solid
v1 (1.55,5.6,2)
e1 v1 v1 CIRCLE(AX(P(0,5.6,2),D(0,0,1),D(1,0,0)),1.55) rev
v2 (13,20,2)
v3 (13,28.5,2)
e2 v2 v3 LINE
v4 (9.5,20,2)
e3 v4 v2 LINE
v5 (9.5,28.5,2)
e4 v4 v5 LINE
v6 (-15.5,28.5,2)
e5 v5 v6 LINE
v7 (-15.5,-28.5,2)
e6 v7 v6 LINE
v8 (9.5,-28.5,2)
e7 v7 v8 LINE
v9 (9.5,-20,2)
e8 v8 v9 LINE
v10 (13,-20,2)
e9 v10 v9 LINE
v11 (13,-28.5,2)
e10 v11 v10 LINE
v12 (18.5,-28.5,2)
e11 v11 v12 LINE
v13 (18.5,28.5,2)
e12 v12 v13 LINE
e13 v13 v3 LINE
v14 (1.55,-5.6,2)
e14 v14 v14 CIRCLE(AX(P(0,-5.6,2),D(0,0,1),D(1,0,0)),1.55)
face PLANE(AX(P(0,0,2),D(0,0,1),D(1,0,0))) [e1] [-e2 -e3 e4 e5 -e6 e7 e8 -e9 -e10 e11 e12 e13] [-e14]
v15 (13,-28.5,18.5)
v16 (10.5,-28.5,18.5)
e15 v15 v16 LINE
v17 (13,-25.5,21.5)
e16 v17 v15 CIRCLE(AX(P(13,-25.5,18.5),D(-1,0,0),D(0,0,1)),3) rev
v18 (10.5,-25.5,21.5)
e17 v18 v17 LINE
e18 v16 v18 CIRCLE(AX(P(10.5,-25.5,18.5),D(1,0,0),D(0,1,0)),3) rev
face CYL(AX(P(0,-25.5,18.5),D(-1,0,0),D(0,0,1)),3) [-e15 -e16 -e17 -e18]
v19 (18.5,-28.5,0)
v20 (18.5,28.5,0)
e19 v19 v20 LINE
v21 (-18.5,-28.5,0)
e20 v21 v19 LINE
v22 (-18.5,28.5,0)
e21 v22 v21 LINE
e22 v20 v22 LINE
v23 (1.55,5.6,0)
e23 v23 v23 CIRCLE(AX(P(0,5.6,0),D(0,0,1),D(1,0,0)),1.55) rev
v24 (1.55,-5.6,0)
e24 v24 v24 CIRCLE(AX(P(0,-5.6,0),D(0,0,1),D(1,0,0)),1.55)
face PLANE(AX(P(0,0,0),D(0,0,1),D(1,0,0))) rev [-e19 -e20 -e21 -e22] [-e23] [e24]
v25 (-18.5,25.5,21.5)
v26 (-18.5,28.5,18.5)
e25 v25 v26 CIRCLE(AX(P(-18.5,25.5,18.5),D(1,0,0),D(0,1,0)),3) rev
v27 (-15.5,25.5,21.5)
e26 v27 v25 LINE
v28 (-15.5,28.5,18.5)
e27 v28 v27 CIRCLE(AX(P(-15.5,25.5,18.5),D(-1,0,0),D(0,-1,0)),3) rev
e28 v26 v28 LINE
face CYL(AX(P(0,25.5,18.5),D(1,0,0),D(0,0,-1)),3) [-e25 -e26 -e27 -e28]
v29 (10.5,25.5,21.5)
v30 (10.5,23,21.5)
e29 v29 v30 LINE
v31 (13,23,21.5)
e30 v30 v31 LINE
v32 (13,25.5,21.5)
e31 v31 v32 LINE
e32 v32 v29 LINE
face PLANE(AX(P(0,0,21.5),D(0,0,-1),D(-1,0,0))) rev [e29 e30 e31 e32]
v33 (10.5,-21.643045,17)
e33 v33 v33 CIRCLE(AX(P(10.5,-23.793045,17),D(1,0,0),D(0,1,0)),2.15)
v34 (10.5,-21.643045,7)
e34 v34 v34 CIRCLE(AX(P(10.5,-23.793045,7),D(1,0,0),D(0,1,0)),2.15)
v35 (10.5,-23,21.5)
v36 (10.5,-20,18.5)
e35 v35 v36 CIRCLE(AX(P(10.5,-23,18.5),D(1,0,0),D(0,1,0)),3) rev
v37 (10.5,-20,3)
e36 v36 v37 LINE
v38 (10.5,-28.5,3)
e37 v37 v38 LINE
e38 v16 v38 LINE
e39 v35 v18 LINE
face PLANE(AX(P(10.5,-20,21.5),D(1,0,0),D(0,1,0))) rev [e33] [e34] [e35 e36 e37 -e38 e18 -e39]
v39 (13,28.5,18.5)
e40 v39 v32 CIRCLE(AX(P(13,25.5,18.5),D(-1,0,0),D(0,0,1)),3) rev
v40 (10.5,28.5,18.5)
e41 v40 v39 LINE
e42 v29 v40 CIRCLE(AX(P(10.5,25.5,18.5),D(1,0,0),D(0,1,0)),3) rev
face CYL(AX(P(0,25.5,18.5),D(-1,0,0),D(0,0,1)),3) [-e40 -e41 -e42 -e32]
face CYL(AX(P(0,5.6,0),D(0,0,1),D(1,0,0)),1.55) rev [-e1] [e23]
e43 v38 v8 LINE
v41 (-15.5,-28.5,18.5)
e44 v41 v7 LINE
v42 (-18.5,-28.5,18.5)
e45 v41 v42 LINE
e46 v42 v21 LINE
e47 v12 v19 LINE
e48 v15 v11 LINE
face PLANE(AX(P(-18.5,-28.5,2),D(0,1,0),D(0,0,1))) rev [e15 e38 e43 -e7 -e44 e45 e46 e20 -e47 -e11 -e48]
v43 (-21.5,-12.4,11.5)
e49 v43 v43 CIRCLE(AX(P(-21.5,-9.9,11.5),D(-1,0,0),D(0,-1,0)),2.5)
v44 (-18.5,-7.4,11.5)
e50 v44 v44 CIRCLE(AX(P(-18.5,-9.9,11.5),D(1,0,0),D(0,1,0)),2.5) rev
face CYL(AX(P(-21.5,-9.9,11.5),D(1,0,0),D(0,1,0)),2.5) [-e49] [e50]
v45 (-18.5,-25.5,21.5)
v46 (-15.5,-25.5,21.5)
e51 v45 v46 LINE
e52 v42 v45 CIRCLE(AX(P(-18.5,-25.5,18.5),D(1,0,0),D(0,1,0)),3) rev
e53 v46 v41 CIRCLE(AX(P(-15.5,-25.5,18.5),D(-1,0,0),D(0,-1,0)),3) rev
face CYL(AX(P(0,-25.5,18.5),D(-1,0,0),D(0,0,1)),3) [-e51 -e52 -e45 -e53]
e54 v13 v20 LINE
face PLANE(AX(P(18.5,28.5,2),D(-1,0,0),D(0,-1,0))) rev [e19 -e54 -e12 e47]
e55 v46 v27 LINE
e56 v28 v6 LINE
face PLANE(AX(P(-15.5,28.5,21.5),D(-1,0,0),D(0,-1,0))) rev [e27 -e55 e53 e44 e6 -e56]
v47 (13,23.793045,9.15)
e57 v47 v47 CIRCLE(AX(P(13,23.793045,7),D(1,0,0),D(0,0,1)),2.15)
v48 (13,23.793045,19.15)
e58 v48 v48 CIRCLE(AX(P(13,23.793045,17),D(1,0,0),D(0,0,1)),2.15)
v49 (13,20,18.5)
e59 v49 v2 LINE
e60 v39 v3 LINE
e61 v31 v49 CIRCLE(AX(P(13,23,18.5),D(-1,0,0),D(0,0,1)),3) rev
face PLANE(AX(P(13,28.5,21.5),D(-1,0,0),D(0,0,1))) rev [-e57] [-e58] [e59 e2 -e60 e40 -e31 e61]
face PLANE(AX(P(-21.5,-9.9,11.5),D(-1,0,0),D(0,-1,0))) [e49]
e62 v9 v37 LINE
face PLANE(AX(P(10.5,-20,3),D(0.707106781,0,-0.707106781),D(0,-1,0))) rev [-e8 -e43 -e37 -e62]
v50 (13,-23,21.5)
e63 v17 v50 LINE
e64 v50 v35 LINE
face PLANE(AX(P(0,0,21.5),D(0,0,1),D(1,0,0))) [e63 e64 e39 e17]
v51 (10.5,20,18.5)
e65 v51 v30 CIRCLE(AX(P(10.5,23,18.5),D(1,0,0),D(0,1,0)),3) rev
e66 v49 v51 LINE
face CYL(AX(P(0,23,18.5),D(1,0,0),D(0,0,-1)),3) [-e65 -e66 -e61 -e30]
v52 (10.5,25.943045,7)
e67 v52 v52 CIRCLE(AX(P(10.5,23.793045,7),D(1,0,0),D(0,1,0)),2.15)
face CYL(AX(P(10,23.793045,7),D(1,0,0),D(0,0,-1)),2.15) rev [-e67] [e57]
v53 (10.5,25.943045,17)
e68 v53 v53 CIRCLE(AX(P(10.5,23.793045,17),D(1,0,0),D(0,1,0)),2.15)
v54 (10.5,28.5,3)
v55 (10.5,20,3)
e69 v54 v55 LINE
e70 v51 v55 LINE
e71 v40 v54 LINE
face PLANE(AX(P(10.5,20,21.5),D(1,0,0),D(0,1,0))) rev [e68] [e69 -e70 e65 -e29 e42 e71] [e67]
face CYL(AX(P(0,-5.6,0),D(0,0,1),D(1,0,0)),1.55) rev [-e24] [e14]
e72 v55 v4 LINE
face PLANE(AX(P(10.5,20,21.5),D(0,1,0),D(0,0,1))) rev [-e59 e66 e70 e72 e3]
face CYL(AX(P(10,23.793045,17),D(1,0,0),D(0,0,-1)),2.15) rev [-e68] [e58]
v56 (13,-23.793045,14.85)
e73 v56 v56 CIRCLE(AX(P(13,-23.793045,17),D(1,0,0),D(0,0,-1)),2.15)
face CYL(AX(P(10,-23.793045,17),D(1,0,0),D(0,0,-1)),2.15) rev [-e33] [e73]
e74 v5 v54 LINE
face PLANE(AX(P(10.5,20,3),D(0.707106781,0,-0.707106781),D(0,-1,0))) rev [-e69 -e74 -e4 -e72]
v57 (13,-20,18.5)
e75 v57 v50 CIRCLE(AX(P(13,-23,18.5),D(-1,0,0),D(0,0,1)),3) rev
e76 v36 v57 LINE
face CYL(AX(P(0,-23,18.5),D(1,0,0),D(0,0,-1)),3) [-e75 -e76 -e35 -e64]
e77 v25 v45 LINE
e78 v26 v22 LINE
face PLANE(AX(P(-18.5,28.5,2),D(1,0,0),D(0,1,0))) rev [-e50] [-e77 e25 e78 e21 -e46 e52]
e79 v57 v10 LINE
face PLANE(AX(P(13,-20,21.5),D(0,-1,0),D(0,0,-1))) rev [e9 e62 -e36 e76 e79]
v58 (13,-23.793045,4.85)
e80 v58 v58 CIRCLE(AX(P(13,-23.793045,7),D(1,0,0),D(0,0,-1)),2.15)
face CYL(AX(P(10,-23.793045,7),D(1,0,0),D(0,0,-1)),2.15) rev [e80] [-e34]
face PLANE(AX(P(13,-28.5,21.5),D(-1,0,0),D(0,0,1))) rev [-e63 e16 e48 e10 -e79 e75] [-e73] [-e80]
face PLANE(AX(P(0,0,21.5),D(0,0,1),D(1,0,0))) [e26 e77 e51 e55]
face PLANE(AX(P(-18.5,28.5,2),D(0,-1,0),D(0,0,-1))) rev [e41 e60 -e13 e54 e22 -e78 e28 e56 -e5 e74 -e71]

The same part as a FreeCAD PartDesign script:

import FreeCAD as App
import Part
import Sketcher

V = App.Vector
Q = App.Units.Quantity


def edges_at(feature, points):
    """Names of the edges that pass closest to the given points."""
    edges = feature.Shape.Edges
    near = lambda p: min(range(len(edges)), key=lambda i: edges[i].distToShape(Part.Vertex(*p))[0])
    return sorted({f"Edge{near(p) + 1}" for p in points})

doc = App.newDocument("Part")
body = doc.addObject("PartDesign::Body", "Body")

# Sketch on XY plane
sketch1 = body.newObject("Sketcher::SketchObject", "Sketch")
sketch1.AttachmentSupport = (doc.getObject("XY_Plane"), [""])
sketch1.MapMode = "FlatFace"
sketch1.addGeometry(Part.LineSegment(V(-18.5, 28.5, 0), V(-18.5, -28.5, 0)), False)
sketch1.addGeometry(Part.LineSegment(V(-18.5, -28.5, 0), V(18.5, -28.5, 0)), False)
sketch1.addGeometry(Part.LineSegment(V(18.5, -28.5, 0), V(18.5, 28.5, 0)), False)
sketch1.addGeometry(Part.LineSegment(V(18.5, 28.5, 0), V(-18.5, 28.5, 0)), False)
sketch1.addConstraint(Sketcher.Constraint("Coincident", 0, 2, 1, 1))
sketch1.addConstraint(Sketcher.Constraint("Coincident", 1, 2, 2, 1))
sketch1.addConstraint(Sketcher.Constraint("Coincident", 2, 2, 3, 1))
sketch1.addConstraint(Sketcher.Constraint("Coincident", 3, 2, 0, 1))
sketch1.addConstraint(Sketcher.Constraint("Vertical", 0))
sketch1.addConstraint(Sketcher.Constraint("Horizontal", 1))
sketch1.addConstraint(Sketcher.Constraint("Vertical", 2))
sketch1.addConstraint(Sketcher.Constraint("Horizontal", 3))
sketch1.addConstraint(Sketcher.Constraint("Symmetric", 0, 2, 2, 2, -1, 1))
sketch1.addConstraint(Sketcher.Constraint("DistanceX", 1, 1, 1, 2, Q("37 mm")))
sketch1.addConstraint(Sketcher.Constraint("DistanceY", 0, 2, 0, 1, Q("57 mm")))
pad1 = body.newObject("PartDesign::Pad", "Pad")
pad1.Profile = sketch1
pad1.Length = 2

# Sketch on XY plane
sketch2 = body.newObject("Sketcher::SketchObject", "Sketch001")
sketch2.AttachmentSupport = (doc.getObject("XY_Plane"), [""])
sketch2.MapMode = "FlatFace"
sketch2.AttachmentOffset = App.Placement(V(0, 0, 2), App.Rotation())
sketch2.addGeometry(Part.LineSegment(V(-18.5, 28.5, 0), V(-18.5, -28.5, 0)), False)
sketch2.addGeometry(Part.LineSegment(V(-18.5, -28.5, 0), V(-15.5, -28.5, 0)), False)
sketch2.addGeometry(Part.LineSegment(V(-15.5, -28.5, 0), V(-15.5, 28.5, 0)), False)
sketch2.addGeometry(Part.LineSegment(V(-15.5, 28.5, 0), V(-18.5, 28.5, 0)), False)
sketch2.addConstraint(Sketcher.Constraint("Coincident", 0, 2, 1, 1))
sketch2.addConstraint(Sketcher.Constraint("Coincident", 1, 2, 2, 1))
sketch2.addConstraint(Sketcher.Constraint("Coincident", 2, 2, 3, 1))
sketch2.addConstraint(Sketcher.Constraint("Coincident", 3, 2, 0, 1))
sketch2.addConstraint(Sketcher.Constraint("Vertical", 0))
sketch2.addConstraint(Sketcher.Constraint("Horizontal", 1))
sketch2.addConstraint(Sketcher.Constraint("Vertical", 2))
sketch2.addConstraint(Sketcher.Constraint("Horizontal", 3))
sketch2.addConstraint(Sketcher.Constraint("DistanceX", 1, 1, 1, 2, Q("3 mm")))
sketch2.addConstraint(Sketcher.Constraint("DistanceY", 0, 2, 0, 1, Q("57 mm")))
sketch2.addConstraint(Sketcher.Constraint("DistanceX", 0, 2, -1, 1, Q("18.5 mm")))
sketch2.addConstraint(Sketcher.Constraint("DistanceY", 0, 2, -1, 1, Q("28.5 mm")))
pad2 = body.newObject("PartDesign::Pad", "Pad001")
pad2.Profile = sketch2
pad2.Length = 19.5

# Sketch on XY plane
sketch3 = body.newObject("Sketcher::SketchObject", "Sketch002")
sketch3.AttachmentSupport = (doc.getObject("XY_Plane"), [""])
sketch3.MapMode = "FlatFace"
sketch3.AttachmentOffset = App.Placement(V(0, 0, 2), App.Rotation())
sketch3.addGeometry(Part.LineSegment(V(10.5, -20, 0), V(10.5, -28.5, 0)), False)
sketch3.addGeometry(Part.LineSegment(V(10.5, -28.5, 0), V(13, -28.5, 0)), False)
sketch3.addGeometry(Part.LineSegment(V(13, -28.5, 0), V(13, -20, 0)), False)
sketch3.addGeometry(Part.LineSegment(V(13, -20, 0), V(10.5, -20, 0)), False)
sketch3.addGeometry(Part.LineSegment(V(10.5, 28.5, 0), V(10.5, 20, 0)), False)
sketch3.addGeometry(Part.LineSegment(V(10.5, 20, 0), V(13, 20, 0)), False)
sketch3.addGeometry(Part.LineSegment(V(13, 20, 0), V(13, 28.5, 0)), False)
sketch3.addGeometry(Part.LineSegment(V(13, 28.5, 0), V(10.5, 28.5, 0)), False)
sketch3.addConstraint(Sketcher.Constraint("Coincident", 0, 2, 1, 1))
sketch3.addConstraint(Sketcher.Constraint("Coincident", 1, 2, 2, 1))
sketch3.addConstraint(Sketcher.Constraint("Coincident", 2, 2, 3, 1))
sketch3.addConstraint(Sketcher.Constraint("Coincident", 3, 2, 0, 1))
sketch3.addConstraint(Sketcher.Constraint("Coincident", 4, 2, 5, 1))
sketch3.addConstraint(Sketcher.Constraint("Coincident", 5, 2, 6, 1))
sketch3.addConstraint(Sketcher.Constraint("Coincident", 6, 2, 7, 1))
sketch3.addConstraint(Sketcher.Constraint("Coincident", 7, 2, 4, 1))
sketch3.addConstraint(Sketcher.Constraint("Vertical", 0))
sketch3.addConstraint(Sketcher.Constraint("Horizontal", 1))
sketch3.addConstraint(Sketcher.Constraint("Vertical", 2))
sketch3.addConstraint(Sketcher.Constraint("Horizontal", 3))
sketch3.addConstraint(Sketcher.Constraint("Vertical", 4))
sketch3.addConstraint(Sketcher.Constraint("Horizontal", 5))
sketch3.addConstraint(Sketcher.Constraint("Vertical", 6))
sketch3.addConstraint(Sketcher.Constraint("Horizontal", 7))
sketch3.addConstraint(Sketcher.Constraint("Symmetric", 3, 2, 4, 2, -1))
sketch3.addConstraint(Sketcher.Constraint("Symmetric", 1, 2, 6, 2, -1))
sketch3.addConstraint(Sketcher.Constraint("DistanceX", 1, 1, 1, 2, Q("2.5 mm")))
sketch3.addConstraint(Sketcher.Constraint("DistanceY", 0, 2, 0, 1, Q("8.5 mm")))
sketch3.addConstraint(Sketcher.Constraint("DistanceX", -1, 1, 1, 2, Q("13 mm")))
sketch3.addConstraint(Sketcher.Constraint("DistanceY", 2, 2, -1, 1, Q("20 mm")))
pad3 = body.newObject("PartDesign::Pad", "Pad002")
pad3.Profile = sketch3
pad3.Length = 19.5

# Sketch on XY plane
sketch4 = body.newObject("Sketcher::SketchObject", "Sketch003")
sketch4.AttachmentSupport = (doc.getObject("XY_Plane"), [""])
sketch4.MapMode = "FlatFace"
sketch4.AttachmentOffset = App.Placement(V(0, 0, 2), App.Rotation())
sketch4.addGeometry(Part.Circle(V(0, 5.6, 0), V(0, 0, 1), 1.55), False)
sketch4.addGeometry(Part.Circle(V(0, -5.6, 0), V(0, 0, 1), 1.55), False)
sketch4.addConstraint(Sketcher.Constraint("Equal", 0, 1))
sketch4.addConstraint(Sketcher.Constraint("Symmetric", 0, 3, 1, 3, -1, 1))
sketch4.addConstraint(Sketcher.Constraint("PointOnObject", 0, 3, -2))
sketch4.addConstraint(Sketcher.Constraint("Diameter", 0, Q("3.1 mm")))
sketch4.addConstraint(Sketcher.Constraint("DistanceY", -1, 1, 0, 3, Q("5.6 mm")))
pocket1 = body.newObject("PartDesign::Pocket", "Pocket")
pocket1.Profile = sketch4
pocket1.Type = "ThroughAll"

# Sketch on YZ plane
sketch5 = body.newObject("Sketcher::SketchObject", "Sketch004")
sketch5.AttachmentSupport = (doc.getObject("YZ_Plane"), [""])
sketch5.MapMode = "FlatFace"
sketch5.AttachmentOffset = App.Placement(V(0, 0, -18.5), App.Rotation())
sketch5.addGeometry(Part.Circle(V(-9.9, 11.5, 0), V(0, 0, 1), 2.5), False)
sketch5.addConstraint(Sketcher.Constraint("Diameter", 0, Q("5 mm")))
sketch5.addConstraint(Sketcher.Constraint("DistanceX", 0, 3, -1, 1, Q("9.9 mm")))
sketch5.addConstraint(Sketcher.Constraint("DistanceY", -1, 1, 0, 3, Q("11.5 mm")))
pad4 = body.newObject("PartDesign::Pad", "Pad003")
pad4.Profile = sketch5
pad4.Length = 3
pad4.Reversed = True

# Sketch on YZ plane
sketch6 = body.newObject("Sketcher::SketchObject", "Sketch005")
sketch6.AttachmentSupport = (doc.getObject("YZ_Plane"), [""])
sketch6.MapMode = "FlatFace"
sketch6.AttachmentOffset = App.Placement(V(0, 0, 13), App.Rotation())
sketch6.addGeometry(Part.Circle(V(-23.793045, 17, 0), V(0, 0, 1), 2.15), False)
sketch6.addGeometry(Part.Circle(V(-23.793045, 7, 0), V(0, 0, 1), 2.15), False)
sketch6.addGeometry(Part.Circle(V(23.793045, 7, 0), V(0, 0, 1), 2.15), False)
sketch6.addGeometry(Part.Circle(V(23.793045, 17, 0), V(0, 0, 1), 2.15), False)
sketch6.addConstraint(Sketcher.Constraint("Equal", 0, 1))
sketch6.addConstraint(Sketcher.Constraint("Equal", 1, 2))
sketch6.addConstraint(Sketcher.Constraint("Equal", 2, 3))
sketch6.addConstraint(Sketcher.Constraint("Symmetric", 1, 3, 2, 3, -2))
sketch6.addConstraint(Sketcher.Constraint("Symmetric", 0, 3, 3, 3, -2))
sketch6.addConstraint(Sketcher.Constraint("Vertical", 0, 3, 1, 3))
sketch6.addConstraint(Sketcher.Constraint("Diameter", 0, Q("4.3 mm")))
sketch6.addConstraint(Sketcher.Constraint("DistanceY", -1, 1, 0, 3, Q("17 mm")))
sketch6.addConstraint(Sketcher.Constraint("DistanceY", -1, 1, 1, 3, Q("7 mm")))
sketch6.addConstraint(Sketcher.Constraint("DistanceX", 1, 3, 2, 3, Q("47.586089 mm")))
pocket2 = body.newObject("PartDesign::Pocket", "Pocket001")
pocket2.Profile = sketch6
pocket2.Length = 3
doc.recompute()

fillet = body.newObject("PartDesign::Fillet", "Fillet")
fillet.Base = (pocket2, edges_at(pocket2, [
    (-17, -28.5, 21.5),
    (-17, 28.5, 21.5),
    (11.75, -28.5, 21.5),
    (11.75, -20, 21.5),
    (11.75, 20, 21.5),
    (11.75, 28.5, 21.5),
]))
fillet.Radius = 3
doc.recompute()

chamfer = body.newObject("PartDesign::Chamfer", "Chamfer")
chamfer.Base = (fillet, edges_at(fillet, [(10.5, -24.25, 2), (10.5, 24.25, 2)]))
chamfer.Size = 1

doc.recompute()
